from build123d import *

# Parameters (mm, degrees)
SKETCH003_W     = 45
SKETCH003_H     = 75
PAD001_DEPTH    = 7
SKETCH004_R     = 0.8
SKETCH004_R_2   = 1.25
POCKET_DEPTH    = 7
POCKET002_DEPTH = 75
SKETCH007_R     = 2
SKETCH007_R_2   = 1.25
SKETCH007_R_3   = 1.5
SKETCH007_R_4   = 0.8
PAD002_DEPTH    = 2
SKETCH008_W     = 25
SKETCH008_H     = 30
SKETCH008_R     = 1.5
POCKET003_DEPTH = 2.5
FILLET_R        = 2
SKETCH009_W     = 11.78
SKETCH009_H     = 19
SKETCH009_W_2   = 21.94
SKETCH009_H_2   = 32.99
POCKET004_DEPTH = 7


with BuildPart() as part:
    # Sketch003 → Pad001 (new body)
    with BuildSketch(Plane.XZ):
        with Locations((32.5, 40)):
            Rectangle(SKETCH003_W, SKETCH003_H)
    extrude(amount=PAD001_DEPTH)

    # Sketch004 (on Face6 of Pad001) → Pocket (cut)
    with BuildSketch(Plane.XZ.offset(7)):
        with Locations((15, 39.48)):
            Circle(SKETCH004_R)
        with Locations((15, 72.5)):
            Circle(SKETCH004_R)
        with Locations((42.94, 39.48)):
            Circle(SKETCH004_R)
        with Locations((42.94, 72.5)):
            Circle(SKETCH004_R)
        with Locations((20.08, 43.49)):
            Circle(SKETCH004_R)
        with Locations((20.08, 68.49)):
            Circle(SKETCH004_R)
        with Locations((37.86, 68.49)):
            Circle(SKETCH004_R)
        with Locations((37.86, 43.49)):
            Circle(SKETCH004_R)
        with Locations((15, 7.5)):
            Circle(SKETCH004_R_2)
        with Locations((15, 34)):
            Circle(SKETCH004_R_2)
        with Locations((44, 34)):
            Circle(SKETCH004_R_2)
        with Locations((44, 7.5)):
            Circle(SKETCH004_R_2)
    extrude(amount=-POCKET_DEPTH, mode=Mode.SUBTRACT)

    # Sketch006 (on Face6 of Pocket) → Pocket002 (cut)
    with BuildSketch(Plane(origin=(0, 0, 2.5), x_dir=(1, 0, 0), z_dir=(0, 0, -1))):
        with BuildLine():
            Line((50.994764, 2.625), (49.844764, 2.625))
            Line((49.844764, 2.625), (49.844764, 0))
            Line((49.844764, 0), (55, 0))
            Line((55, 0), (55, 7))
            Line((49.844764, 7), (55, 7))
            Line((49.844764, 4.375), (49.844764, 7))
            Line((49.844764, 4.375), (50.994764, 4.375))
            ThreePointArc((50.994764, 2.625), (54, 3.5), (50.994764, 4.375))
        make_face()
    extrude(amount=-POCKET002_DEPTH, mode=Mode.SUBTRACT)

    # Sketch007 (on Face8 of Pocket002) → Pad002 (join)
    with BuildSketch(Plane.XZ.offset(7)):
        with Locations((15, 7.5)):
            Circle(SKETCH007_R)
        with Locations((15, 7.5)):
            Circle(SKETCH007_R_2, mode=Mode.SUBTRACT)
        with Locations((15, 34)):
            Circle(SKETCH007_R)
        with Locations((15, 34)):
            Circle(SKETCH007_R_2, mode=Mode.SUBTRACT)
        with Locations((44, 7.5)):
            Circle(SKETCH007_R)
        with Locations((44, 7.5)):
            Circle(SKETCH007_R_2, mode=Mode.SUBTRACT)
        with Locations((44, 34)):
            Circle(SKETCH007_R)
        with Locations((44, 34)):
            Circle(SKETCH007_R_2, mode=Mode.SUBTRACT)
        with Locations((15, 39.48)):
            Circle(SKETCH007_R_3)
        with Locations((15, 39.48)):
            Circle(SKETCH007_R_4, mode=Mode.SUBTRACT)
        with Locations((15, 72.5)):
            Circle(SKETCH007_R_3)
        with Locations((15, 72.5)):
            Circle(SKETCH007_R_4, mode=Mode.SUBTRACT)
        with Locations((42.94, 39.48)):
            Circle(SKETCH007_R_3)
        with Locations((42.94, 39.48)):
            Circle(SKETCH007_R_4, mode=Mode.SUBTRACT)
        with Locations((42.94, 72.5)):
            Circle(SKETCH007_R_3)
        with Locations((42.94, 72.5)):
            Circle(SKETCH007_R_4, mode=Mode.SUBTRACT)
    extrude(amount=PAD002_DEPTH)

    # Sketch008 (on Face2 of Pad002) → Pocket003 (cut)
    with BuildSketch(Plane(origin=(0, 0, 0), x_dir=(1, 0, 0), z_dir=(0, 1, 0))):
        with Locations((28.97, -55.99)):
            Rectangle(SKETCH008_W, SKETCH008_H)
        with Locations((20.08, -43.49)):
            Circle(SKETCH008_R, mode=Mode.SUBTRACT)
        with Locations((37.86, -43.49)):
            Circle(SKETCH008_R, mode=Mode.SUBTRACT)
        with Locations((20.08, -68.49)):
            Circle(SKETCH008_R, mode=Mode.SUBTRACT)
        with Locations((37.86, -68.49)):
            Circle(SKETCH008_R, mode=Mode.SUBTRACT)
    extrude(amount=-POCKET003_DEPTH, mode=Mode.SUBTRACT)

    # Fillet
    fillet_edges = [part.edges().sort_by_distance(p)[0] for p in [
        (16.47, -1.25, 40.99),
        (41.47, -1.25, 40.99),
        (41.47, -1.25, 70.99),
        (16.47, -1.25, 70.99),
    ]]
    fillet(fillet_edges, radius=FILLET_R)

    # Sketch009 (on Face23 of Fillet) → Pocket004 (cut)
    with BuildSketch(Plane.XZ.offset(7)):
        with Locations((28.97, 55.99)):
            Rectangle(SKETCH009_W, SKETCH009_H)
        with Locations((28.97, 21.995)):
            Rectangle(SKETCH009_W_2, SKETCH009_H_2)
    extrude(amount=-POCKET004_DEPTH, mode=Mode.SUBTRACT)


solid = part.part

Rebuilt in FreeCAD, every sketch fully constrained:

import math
import FreeCAD as App
import Part
import Sketcher
from FreeCAD import Vector
Q = App.Units.Quantity


def edges_at(feature, points):
    """Names of the edges that pass closest to the given points."""
    edges = feature.Shape.Edges
    near = lambda p: min(range(len(edges)), key=lambda i: edges[i].distToShape(Part.Vertex(*p))[0])
    return sorted({f"Edge{near(p) + 1}" for p in points})

doc = App.newDocument("Part")
body = doc.addObject("PartDesign::Body", "Body")

sketch1 = doc.addObject("Sketcher::SketchObject", "Sketch")
body.addObject(sketch1)
sketch1.AttachmentSupport = (doc.XZ_Plane, [""])
sketch1.MapMode = "FlatFace"
sketch1.addGeometry(Part.LineSegment(Vector(10, 77.5, 0), Vector(10, 2.5, 0)), False)
sketch1.addGeometry(Part.LineSegment(Vector(10, 2.5, 0), Vector(55, 2.5, 0)), False)
sketch1.addGeometry(Part.LineSegment(Vector(55, 2.5, 0), Vector(55, 77.5, 0)), False)
sketch1.addGeometry(Part.LineSegment(Vector(55, 77.5, 0), Vector(10, 77.5, 0)), False)
sketch1.addConstraint(Sketcher.Constraint("Coincident", 0, 2, 1, 1))
sketch1.addConstraint(Sketcher.Constraint("Coincident", 1, 2, 2, 1))
sketch1.addConstraint(Sketcher.Constraint("Coincident", 2, 2, 3, 1))
sketch1.addConstraint(Sketcher.Constraint("Coincident", 3, 2, 0, 1))
sketch1.addConstraint(Sketcher.Constraint("Vertical", 0))
sketch1.addConstraint(Sketcher.Constraint("Horizontal", 1))
sketch1.addConstraint(Sketcher.Constraint("Vertical", 2))
sketch1.addConstraint(Sketcher.Constraint("Horizontal", 3))
sketch1.addConstraint(Sketcher.Constraint("DistanceX", 1, 1, 1, 2, Q("45 mm")))
sketch1.addConstraint(Sketcher.Constraint("DistanceY", 0, 2, 0, 1, Q("75 mm")))
sketch1.addConstraint(Sketcher.Constraint("DistanceX", -1, 1, 0, 2, Q("10 mm")))
sketch1.addConstraint(Sketcher.Constraint("DistanceY", -1, 1, 0, 2, Q("2.5 mm")))
pad1 = doc.addObject("PartDesign::Pad", "Pad")
body.addObject(pad1)
pad1.Profile = sketch1
pad1.Length = 7

sketch2 = doc.addObject("Sketcher::SketchObject", "Sketch001")
body.addObject(sketch2)
sketch2.AttachmentSupport = (doc.XZ_Plane, [""])
sketch2.MapMode = "FlatFace"
sketch2.AttachmentOffset = App.Placement(Vector(0, 0, 7), App.Rotation())
sketch2.addGeometry(Part.Circle(Vector(15, 39.48, 0), Vector(0, 0, 1), 0.8), False)
sketch2.addGeometry(Part.Circle(Vector(15, 72.5, 0), Vector(0, 0, 1), 0.8), False)
sketch2.addGeometry(Part.Circle(Vector(42.94, 39.48, 0), Vector(0, 0, 1), 0.8), False)
sketch2.addGeometry(Part.Circle(Vector(42.94, 72.5, 0), Vector(0, 0, 1), 0.8), False)
sketch2.addGeometry(Part.Circle(Vector(20.08, 43.49, 0), Vector(0, 0, 1), 0.8), False)
sketch2.addGeometry(Part.Circle(Vector(20.08, 68.49, 0), Vector(0, 0, 1), 0.8), False)
sketch2.addGeometry(Part.Circle(Vector(37.86, 68.49, 0), Vector(0, 0, 1), 0.8), False)
sketch2.addGeometry(Part.Circle(Vector(37.86, 43.49, 0), Vector(0, 0, 1), 0.8), False)
sketch2.addGeometry(Part.Circle(Vector(15, 7.5, 0), Vector(0, 0, 1), 1.25), False)
sketch2.addGeometry(Part.Circle(Vector(15, 34, 0), Vector(0, 0, 1), 1.25), False)
sketch2.addGeometry(Part.Circle(Vector(44, 34, 0), Vector(0, 0, 1), 1.25), False)
sketch2.addGeometry(Part.Circle(Vector(44, 7.5, 0), Vector(0, 0, 1), 1.25), False)
sketch2.addConstraint(Sketcher.Constraint("Equal", 0, 1))
sketch2.addConstraint(Sketcher.Constraint("Equal", 1, 2))
sketch2.addConstraint(Sketcher.Constraint("Equal", 2, 3))
sketch2.addConstraint(Sketcher.Constraint("Equal", 3, 4))
sketch2.addConstraint(Sketcher.Constraint("Equal", 4, 5))
sketch2.addConstraint(Sketcher.Constraint("Equal", 5, 6))
sketch2.addConstraint(Sketcher.Constraint("Equal", 6, 7))
sketch2.addConstraint(Sketcher.Constraint("Equal", 8, 9))
sketch2.addConstraint(Sketcher.Constraint("Equal", 9, 10))
sketch2.addConstraint(Sketcher.Constraint("Equal", 10, 11))
sketch2.addConstraint(Sketcher.Constraint("Horizontal", 0, 3, 2, 3))
sketch2.addConstraint(Sketcher.Constraint("Horizontal", 1, 3, 3, 3))
sketch2.addConstraint(Sketcher.Constraint("Horizontal", 5, 3, 6, 3))
sketch2.addConstraint(Sketcher.Constraint("Horizontal", 4, 3, 7, 3))
sketch2.addConstraint(Sketcher.Constraint("Horizontal", 9, 3, 10, 3))
sketch2.addConstraint(Sketcher.Constraint("Horizontal", 8, 3, 11, 3))
sketch2.addConstraint(Sketcher.Constraint("Vertical", 0, 3, 1, 3))
sketch2.addConstraint(Sketcher.Constraint("Vertical", 2, 3, 3, 3))
sketch2.addConstraint(Sketcher.Constraint("Vertical", 4, 3, 5, 3))
sketch2.addConstraint(Sketcher.Constraint("Vertical", 6, 3, 7, 3))
sketch2.addConstraint(Sketcher.Constraint("Vertical", 1, 3, 8, 3))
sketch2.addConstraint(Sketcher.Constraint("Vertical", 8, 3, 9, 3))
sketch2.addConstraint(Sketcher.Constraint("Vertical", 10, 3, 11, 3))
sketch2.addConstraint(Sketcher.Constraint("Diameter", 0, Q("1.6 mm")))
sketch2.addConstraint(Sketcher.Constraint("Diameter", 8, Q("2.5 mm")))
sketch2.addConstraint(Sketcher.Constraint("DistanceX", -1, 1, 0, 3, Q("15 mm")))
sketch2.addConstraint(Sketcher.Constraint("DistanceY", -1, 1, 9, 3, Q("34 mm")))
sketch2.addConstraint(Sketcher.Constraint("DistanceX", -1, 1, 10, 3, Q("44 mm")))
sketch2.addConstraint(Sketcher.Constraint("DistanceY", 4, 3, 5, 3, Q("25 mm")))
sketch2.addConstraint(Sketcher.Constraint("DistanceY", -1, 1, 1, 3, Q("72.5 mm")))
sketch2.addConstraint(Sketcher.Constraint("DistanceY", -1, 1, 8, 3, Q("7.5 mm")))
sketch2.addConstraint(Sketcher.Constraint("DistanceY", -1, 1, 0, 3, Q("39.48 mm")))
sketch2.addConstraint(Sketcher.Constraint("DistanceX", -1, 1, 2, 3, Q("42.94 mm")))
sketch2.addConstraint(Sketcher.Constraint("DistanceX", -1, 1, 4, 3, Q("20.08 mm")))
sketch2.addConstraint(Sketcher.Constraint("DistanceY", -1, 1, 4, 3, Q("43.49 mm")))
sketch2.addConstraint(Sketcher.Constraint("DistanceX", -1, 1, 6, 3, Q("37.86 mm")))
pocket1 = doc.addObject("PartDesign::Pocket", "Pocket")
body.addObject(pocket1)
pocket1.Profile = sketch2
pocket1.Length = 7

sketch3 = doc.addObject("Sketcher::SketchObject", "Sketch002")
body.addObject(sketch3)
sketch3.AttachmentSupport = (doc.XY_Plane, [""])
sketch3.MapMode = "FlatFace"
sketch3.AttachmentOffset = App.Placement(Vector(0, 0, 2.5), App.Rotation())
sketch3.addGeometry(Part.LineSegment(Vector(50.994764, -2.625, 0), Vector(49.844764, -2.625, 0)), False)
sketch3.addGeometry(Part.LineSegment(Vector(49.844764, -2.625, 0), Vector(49.844764, 0, 0)), False)
sketch3.addGeometry(Part.LineSegment(Vector(49.844764, 0, 0), Vector(55, 0, 0)), False)
sketch3.addGeometry(Part.LineSegment(Vector(55, 0, 0), Vector(55, -7, 0)), False)
sketch3.addGeometry(Part.LineSegment(Vector(55, -7, 0), Vector(49.844764, -7, 0)), False)
sketch3.addGeometry(Part.LineSegment(Vector(49.844764, -7, 0), Vector(49.844764, -4.375, 0)), False)
sketch3.addGeometry(Part.LineSegment(Vector(49.844764, -4.375, 0), Vector(50.994764, -4.375, 0)), False)
sketch3.addGeometry(Part.ArcOfCircle(Part.Circle(Vector(52.37, -3.5, 0), Vector(0, 0, 1), 1.63), math.radians(-147.533264), math.radians(147.533264)), False)
sketch3.addConstraint(Sketcher.Constraint("Coincident", 0, 2, 1, 1))
sketch3.addConstraint(Sketcher.Constraint("Coincident", 1, 2, 2, 1))
sketch3.addConstraint(Sketcher.Constraint("Coincident", 2, 2, 3, 1))
sketch3.addConstraint(Sketcher.Constraint("Coincident", 3, 2, 4, 1))
sketch3.addConstraint(Sketcher.Constraint("Coincident", 4, 2, 5, 1))
sketch3.addConstraint(Sketcher.Constraint("Coincident", 5, 2, 6, 1))
sketch3.addConstraint(Sketcher.Constraint("Coincident", 6, 2, 7, 1))
sketch3.addConstraint(Sketcher.Constraint("Coincident", 7, 2, 0, 1))
sketch3.addConstraint(Sketcher.Constraint("Horizontal", 0))
sketch3.addConstraint(Sketcher.Constraint("Vertical", 1))
sketch3.addConstraint(Sketcher.Constraint("Horizontal", 2))
sketch3.addConstraint(Sketcher.Constraint("Vertical", 3))
sketch3.addConstraint(Sketcher.Constraint("Horizontal", 4))
sketch3.addConstraint(Sketcher.Constraint("Vertical", 5))
sketch3.addConstraint(Sketcher.Constraint("Horizontal", 6))
sketch3.addConstraint(Sketcher.Constraint("PointOnObject", 1, 2, -1))
sketch3.addConstraint(Sketcher.Constraint("Vertical", 1, 2, 4, 2))
sketch3.addConstraint(Sketcher.Constraint("Vertical", 6, 2, 7, 2))
sketch3.addConstraint(Sketcher.Constraint("Equal", 1, 5))
sketch3.addConstraint(Sketcher.Constraint("DistanceY", 3, 2, 3, 1, Q("7 mm")))
sketch3.addConstraint(Sketcher.Constraint("Radius", 7, Q("1.63 mm")))
sketch3.addConstraint(Sketcher.Constraint("DistanceX", -1, 1, 2, 2, Q("55 mm")))
sketch3.addConstraint(Sketcher.Constraint("DistanceX", 0, 2, 0, 1, Q("1.15 mm")))
sketch3.addConstraint(Sketcher.Constraint("DistanceY", 1, 1, 1, 2, Q("2.625 mm")))
sketch3.addConstraint(Sketcher.Constraint("DistanceX", -1, 1, 7, 3, Q("52.37 mm")))
pocket2 = doc.addObject("PartDesign::Pocket", "Pocket001")
body.addObject(pocket2)
pocket2.Profile = sketch3
pocket2.Length = 75
pocket2.Reversed = True

sketch4 = doc.addObject("Sketcher::SketchObject", "Sketch003")
body.addObject(sketch4)
sketch4.AttachmentSupport = (doc.XZ_Plane, [""])
sketch4.MapMode = "FlatFace"
sketch4.AttachmentOffset = App.Placement(Vector(0, 0, 7), App.Rotation())
sketch4.addGeometry(Part.Circle(Vector(15, 7.5, 0), Vector(0, 0, 1), 2), False)
sketch4.addGeometry(Part.Circle(Vector(15, 7.5, 0), Vector(0, 0, 1), 1.25), False)
sketch4.addGeometry(Part.Circle(Vector(15, 34, 0), Vector(0, 0, 1), 2), False)
sketch4.addGeometry(Part.Circle(Vector(15, 34, 0), Vector(0, 0, 1), 1.25), False)
sketch4.addGeometry(Part.Circle(Vector(44, 7.5, 0), Vector(0, 0, 1), 2), False)
sketch4.addGeometry(Part.Circle(Vector(44, 7.5, 0), Vector(0, 0, 1), 1.25), False)
sketch4.addGeometry(Part.Circle(Vector(44, 34, 0), Vector(0, 0, 1), 2), False)
sketch4.addGeometry(Part.Circle(Vector(44, 34, 0), Vector(0, 0, 1), 1.25), False)
sketch4.addGeometry(Part.Circle(Vector(15, 39.48, 0), Vector(0, 0, 1), 1.5), False)
sketch4.addGeometry(Part.Circle(Vector(15, 39.48, 0), Vector(0, 0, 1), 0.8), False)
sketch4.addGeometry(Part.Circle(Vector(15, 72.5, 0), Vector(0, 0, 1), 1.5), False)
sketch4.addGeometry(Part.Circle(Vector(15, 72.5, 0), Vector(0, 0, 1), 0.8), False)
sketch4.addGeometry(Part.Circle(Vector(42.94, 39.48, 0), Vector(0, 0, 1), 1.5), False)
sketch4.addGeometry(Part.Circle(Vector(42.94, 39.48, 0), Vector(0, 0, 1), 0.8), False)
sketch4.addGeometry(Part.Circle(Vector(42.94, 72.5, 0), Vector(0, 0, 1), 1.5), False)
sketch4.addGeometry(Part.Circle(Vector(42.94, 72.5, 0), Vector(0, 0, 1), 0.8), False)
sketch4.addConstraint(Sketcher.Constraint("Coincident", 1, 3, 0, 3))
sketch4.addConstraint(Sketcher.Constraint("Coincident", 3, 3, 2, 3))
sketch4.addConstraint(Sketcher.Constraint("Coincident", 5, 3, 4, 3))
sketch4.addConstraint(Sketcher.Constraint("Coincident", 7, 3, 6, 3))
sketch4.addConstraint(Sketcher.Constraint("Coincident", 9, 3, 8, 3))
sketch4.addConstraint(Sketcher.Constraint("Coincident", 11, 3, 10, 3))
sketch4.addConstraint(Sketcher.Constraint("Coincident", 13, 3, 12, 3))
sketch4.addConstraint(Sketcher.Constraint("Coincident", 15, 3, 14, 3))
sketch4.addConstraint(Sketcher.Constraint("Equal", 0, 2))
sketch4.addConstraint(Sketcher.Constraint("Equal", 1, 3))
sketch4.addConstraint(Sketcher.Constraint("Equal", 2, 4))
sketch4.addConstraint(Sketcher.Constraint("Equal", 3, 5))
sketch4.addConstraint(Sketcher.Constraint("Equal", 4, 6))
sketch4.addConstraint(Sketcher.Constraint("Equal", 5, 7))
sketch4.addConstraint(Sketcher.Constraint("Equal", 8, 10))
sketch4.addConstraint(Sketcher.Constraint("Equal", 9, 11))
sketch4.addConstraint(Sketcher.Constraint("Equal", 10, 12))
sketch4.addConstraint(Sketcher.Constraint("Equal", 11, 13))
sketch4.addConstraint(Sketcher.Constraint("Equal", 12, 14))
sketch4.addConstraint(Sketcher.Constraint("Equal", 13, 15))
sketch4.addConstraint(Sketcher.Constraint("Horizontal", 1, 3, 4, 3))
sketch4.addConstraint(Sketcher.Constraint("Horizontal", 3, 3, 6, 3))
sketch4.addConstraint(Sketcher.Constraint("Horizontal", 9, 3, 12, 3))
sketch4.addConstraint(Sketcher.Constraint("Horizontal", 11, 3, 14, 3))
sketch4.addConstraint(Sketcher.Constraint("Vertical", 1, 3, 2, 3))
sketch4.addConstraint(Sketcher.Constraint("Vertical", 5, 3, 6, 3))
sketch4.addConstraint(Sketcher.Constraint("Vertical", 3, 3, 8, 3))
sketch4.addConstraint(Sketcher.Constraint("Vertical", 9, 3, 10, 3))
sketch4.addConstraint(Sketcher.Constraint("Vertical", 13, 3, 14, 3))
sketch4.addConstraint(Sketcher.Constraint("Diameter", 0, Q("4 mm")))
sketch4.addConstraint(Sketcher.Constraint("Diameter", 8, Q("3 mm")))
sketch4.addConstraint(Sketcher.Constraint("Diameter", 1, Q("2.5 mm")))
sketch4.addConstraint(Sketcher.Constraint("Diameter", 9, Q("1.6 mm")))
sketch4.addConstraint(Sketcher.Constraint("DistanceX", -1, 1, 0, 3, Q("15 mm")))
sketch4.addConstraint(Sketcher.Constraint("DistanceY", -1, 1, 2, 3, Q("34 mm")))
sketch4.addConstraint(Sketcher.Constraint("DistanceX", -1, 1, 4, 3, Q("44 mm")))
sketch4.addConstraint(Sketcher.Constraint("DistanceY", -1, 1, 0, 3, Q("7.5 mm")))
sketch4.addConstraint(Sketcher.Constraint("DistanceY", -1, 1, 10, 3, Q("72.5 mm")))
sketch4.addConstraint(Sketcher.Constraint("DistanceY", -1, 1, 8, 3, Q("39.48 mm")))
sketch4.addConstraint(Sketcher.Constraint("DistanceX", -1, 1, 12, 3, Q("42.94 mm")))
pad2 = doc.addObject("PartDesign::Pad", "Pad001")
body.addObject(pad2)
pad2.Profile = sketch4
pad2.Length = 2

sketch5 = doc.addObject("Sketcher::SketchObject", "Sketch004")
body.addObject(sketch5)
sketch5.AttachmentSupport = (doc.XZ_Plane, [""])
sketch5.MapMode = "FlatFace"
sketch5.addGeometry(Part.LineSegment(Vector(16.47, 40.99, 0), Vector(16.47, 70.99, 0)), False)
sketch5.addGeometry(Part.LineSegment(Vector(16.47, 70.99, 0), Vector(41.47, 70.99, 0)), False)
sketch5.addGeometry(Part.LineSegment(Vector(41.47, 70.99, 0), Vector(41.47, 40.99, 0)), False)
sketch5.addGeometry(Part.LineSegment(Vector(41.47, 40.99, 0), Vector(16.47, 40.99, 0)), False)
sketch5.addGeometry(Part.Circle(Vector(20.08, 68.49, 0), Vector(0, 0, 1), 1.5), False)
sketch5.addGeometry(Part.Circle(Vector(37.86, 68.49, 0), Vector(0, 0, 1), 1.5), False)
sketch5.addGeometry(Part.Circle(Vector(20.08, 43.49, 0), Vector(0, 0, 1), 1.5), False)
sketch5.addGeometry(Part.Circle(Vector(37.86, 43.49, 0), Vector(0, 0, 1), 1.5), False)
sketch5.addConstraint(Sketcher.Constraint("Coincident", 0, 2, 1, 1))
sketch5.addConstraint(Sketcher.Constraint("Coincident", 1, 2, 2, 1))
sketch5.addConstraint(Sketcher.Constraint("Coincident", 2, 2, 3, 1))
sketch5.addConstraint(Sketcher.Constraint("Coincident", 3, 2, 0, 1))
sketch5.addConstraint(Sketcher.Constraint("Vertical", 0))
sketch5.addConstraint(Sketcher.Constraint("Horizontal", 1))
sketch5.addConstraint(Sketcher.Constraint("Vertical", 2))
sketch5.addConstraint(Sketcher.Constraint("Horizontal", 3))
sketch5.addConstraint(Sketcher.Constraint("Equal", 4, 5))
sketch5.addConstraint(Sketcher.Constraint("Equal", 5, 6))
sketch5.addConstraint(Sketcher.Constraint("Equal", 6, 7))
sketch5.addConstraint(Sketcher.Constraint("Horizontal", 4, 3, 5, 3))
sketch5.addConstraint(Sketcher.Constraint("Horizontal", 6, 3, 7, 3))
sketch5.addConstraint(Sketcher.Constraint("Vertical", 4, 3, 6, 3))
sketch5.addConstraint(Sketcher.Constraint("Vertical", 5, 3, 7, 3))
sketch5.addConstraint(Sketcher.Constraint("Diameter", 4, Q("3 mm")))
sketch5.addConstraint(Sketcher.Constraint("DistanceX", 1, 1, 1, 2, Q("25 mm")))
sketch5.addConstraint(Sketcher.Constraint("DistanceY", 0, 1, 0, 2, Q("30 mm")))
sketch5.addConstraint(Sketcher.Constraint("DistanceY", 6, 3, 4, 3, Q("25 mm")))
sketch5.addConstraint(Sketcher.Constraint("DistanceY", 4, 3, 0, 2, Q("2.5 mm")))
sketch5.addConstraint(Sketcher.Constraint("DistanceX", -1, 1, 4, 3, Q("20.08 mm")))
sketch5.addConstraint(Sketcher.Constraint("DistanceY", -1, 1, 4, 3, Q("68.49 mm")))
sketch5.addConstraint(Sketcher.Constraint("DistanceX", -1, 1, 5, 3, Q("37.86 mm")))
sketch5.addConstraint(Sketcher.Constraint("DistanceX", -1, 1, 0, 2, Q("16.47 mm")))
pocket3 = doc.addObject("PartDesign::Pocket", "Pocket002")
body.addObject(pocket3)
pocket3.Profile = sketch5
pocket3.Length = 2.5
pocket3.Reversed = True
doc.recompute()

fillet = doc.addObject("PartDesign::Fillet", "Fillet")
body.addObject(fillet)
fillet.Base = (pocket3, edges_at(pocket3, [
    (16.47, -1.25, 40.99),
    (41.47, -1.25, 40.99),
    (41.47, -1.25, 70.99),
    (16.47, -1.25, 70.99),
]))
fillet.Radius = 2

sketch6 = doc.addObject("Sketcher::SketchObject", "Sketch005")
body.addObject(sketch6)
sketch6.AttachmentSupport = (doc.XZ_Plane, [""])
sketch6.MapMode = "FlatFace"
sketch6.AttachmentOffset = App.Placement(Vector(0, 0, 7), App.Rotation())
sketch6.addGeometry(Part.LineSegment(Vector(23.08, 65.49, 0), Vector(23.08, 46.49, 0)), False)
sketch6.addGeometry(Part.LineSegment(Vector(23.08, 46.49, 0), Vector(34.86, 46.49, 0)), False)
sketch6.addGeometry(Part.LineSegment(Vector(34.86, 46.49, 0), Vector(34.86, 65.49, 0)), False)
sketch6.addGeometry(Part.LineSegment(Vector(34.86, 65.49, 0), Vector(23.08, 65.49, 0)), False)
sketch6.addGeometry(Part.LineSegment(Vector(18, 38.49, 0), Vector(18, 5.5, 0)), False)
sketch6.addGeometry(Part.LineSegment(Vector(18, 5.5, 0), Vector(39.94, 5.5, 0)), False)
sketch6.addGeometry(Part.LineSegment(Vector(39.94, 5.5, 0), Vector(39.94, 38.49, 0)), False)
sketch6.addGeometry(Part.LineSegment(Vector(39.94, 38.49, 0), Vector(18, 38.49, 0)), False)
sketch6.addConstraint(Sketcher.Constraint("Coincident", 0, 2, 1, 1))
sketch6.addConstraint(Sketcher.Constraint("Coincident", 1, 2, 2, 1))
sketch6.addConstraint(Sketcher.Constraint("Coincident", 2, 2, 3, 1))
sketch6.addConstraint(Sketcher.Constraint("Coincident", 3, 2, 0, 1))
sketch6.addConstraint(Sketcher.Constraint("Coincident", 4, 2, 5, 1))
sketch6.addConstraint(Sketcher.Constraint("Coincident", 5, 2, 6, 1))
sketch6.addConstraint(Sketcher.Constraint("Coincident", 6, 2, 7, 1))
sketch6.addConstraint(Sketcher.Constraint("Coincident", 7, 2, 4, 1))
sketch6.addConstraint(Sketcher.Constraint("Vertical", 0))
sketch6.addConstraint(Sketcher.Constraint("Horizontal", 1))
sketch6.addConstraint(Sketcher.Constraint("Vertical", 2))
sketch6.addConstraint(Sketcher.Constraint("Horizontal", 3))
sketch6.addConstraint(Sketcher.Constraint("Vertical", 4))
sketch6.addConstraint(Sketcher.Constraint("Horizontal", 5))
sketch6.addConstraint(Sketcher.Constraint("Vertical", 6))
sketch6.addConstraint(Sketcher.Constraint("Horizontal", 7))
sketch6.addConstraint(Sketcher.Constraint("DistanceY", 0, 2, 0, 1, Q("19 mm")))
sketch6.addConstraint(Sketcher.Constraint("DistanceX", -1, 1, 4, 2, Q("18 mm")))
sketch6.addConstraint(Sketcher.Constraint("DistanceY", 6, 2, 1, 2, Q("8 mm")))
sketch6.addConstraint(Sketcher.Constraint("DistanceX", 1, 1, 1, 2, Q("11.78 mm")))
sketch6.addConstraint(Sketcher.Constraint("DistanceX", 5, 1, 5, 2, Q("21.94 mm")))
sketch6.addConstraint(Sketcher.Constraint("DistanceY", 4, 2, 4, 1, Q("32.99 mm")))
sketch6.addConstraint(Sketcher.Constraint("DistanceY", -1, 1, 4, 2, Q("5.5 mm")))
sketch6.addConstraint(Sketcher.Constraint("DistanceX", -1, 1, 0, 2, Q("23.08 mm")))
pocket4 = doc.addObject("PartDesign::Pocket", "Pocket003")
body.addObject(pocket4)
pocket4.Profile = sketch6
pocket4.Length = 7

doc.recompute()
